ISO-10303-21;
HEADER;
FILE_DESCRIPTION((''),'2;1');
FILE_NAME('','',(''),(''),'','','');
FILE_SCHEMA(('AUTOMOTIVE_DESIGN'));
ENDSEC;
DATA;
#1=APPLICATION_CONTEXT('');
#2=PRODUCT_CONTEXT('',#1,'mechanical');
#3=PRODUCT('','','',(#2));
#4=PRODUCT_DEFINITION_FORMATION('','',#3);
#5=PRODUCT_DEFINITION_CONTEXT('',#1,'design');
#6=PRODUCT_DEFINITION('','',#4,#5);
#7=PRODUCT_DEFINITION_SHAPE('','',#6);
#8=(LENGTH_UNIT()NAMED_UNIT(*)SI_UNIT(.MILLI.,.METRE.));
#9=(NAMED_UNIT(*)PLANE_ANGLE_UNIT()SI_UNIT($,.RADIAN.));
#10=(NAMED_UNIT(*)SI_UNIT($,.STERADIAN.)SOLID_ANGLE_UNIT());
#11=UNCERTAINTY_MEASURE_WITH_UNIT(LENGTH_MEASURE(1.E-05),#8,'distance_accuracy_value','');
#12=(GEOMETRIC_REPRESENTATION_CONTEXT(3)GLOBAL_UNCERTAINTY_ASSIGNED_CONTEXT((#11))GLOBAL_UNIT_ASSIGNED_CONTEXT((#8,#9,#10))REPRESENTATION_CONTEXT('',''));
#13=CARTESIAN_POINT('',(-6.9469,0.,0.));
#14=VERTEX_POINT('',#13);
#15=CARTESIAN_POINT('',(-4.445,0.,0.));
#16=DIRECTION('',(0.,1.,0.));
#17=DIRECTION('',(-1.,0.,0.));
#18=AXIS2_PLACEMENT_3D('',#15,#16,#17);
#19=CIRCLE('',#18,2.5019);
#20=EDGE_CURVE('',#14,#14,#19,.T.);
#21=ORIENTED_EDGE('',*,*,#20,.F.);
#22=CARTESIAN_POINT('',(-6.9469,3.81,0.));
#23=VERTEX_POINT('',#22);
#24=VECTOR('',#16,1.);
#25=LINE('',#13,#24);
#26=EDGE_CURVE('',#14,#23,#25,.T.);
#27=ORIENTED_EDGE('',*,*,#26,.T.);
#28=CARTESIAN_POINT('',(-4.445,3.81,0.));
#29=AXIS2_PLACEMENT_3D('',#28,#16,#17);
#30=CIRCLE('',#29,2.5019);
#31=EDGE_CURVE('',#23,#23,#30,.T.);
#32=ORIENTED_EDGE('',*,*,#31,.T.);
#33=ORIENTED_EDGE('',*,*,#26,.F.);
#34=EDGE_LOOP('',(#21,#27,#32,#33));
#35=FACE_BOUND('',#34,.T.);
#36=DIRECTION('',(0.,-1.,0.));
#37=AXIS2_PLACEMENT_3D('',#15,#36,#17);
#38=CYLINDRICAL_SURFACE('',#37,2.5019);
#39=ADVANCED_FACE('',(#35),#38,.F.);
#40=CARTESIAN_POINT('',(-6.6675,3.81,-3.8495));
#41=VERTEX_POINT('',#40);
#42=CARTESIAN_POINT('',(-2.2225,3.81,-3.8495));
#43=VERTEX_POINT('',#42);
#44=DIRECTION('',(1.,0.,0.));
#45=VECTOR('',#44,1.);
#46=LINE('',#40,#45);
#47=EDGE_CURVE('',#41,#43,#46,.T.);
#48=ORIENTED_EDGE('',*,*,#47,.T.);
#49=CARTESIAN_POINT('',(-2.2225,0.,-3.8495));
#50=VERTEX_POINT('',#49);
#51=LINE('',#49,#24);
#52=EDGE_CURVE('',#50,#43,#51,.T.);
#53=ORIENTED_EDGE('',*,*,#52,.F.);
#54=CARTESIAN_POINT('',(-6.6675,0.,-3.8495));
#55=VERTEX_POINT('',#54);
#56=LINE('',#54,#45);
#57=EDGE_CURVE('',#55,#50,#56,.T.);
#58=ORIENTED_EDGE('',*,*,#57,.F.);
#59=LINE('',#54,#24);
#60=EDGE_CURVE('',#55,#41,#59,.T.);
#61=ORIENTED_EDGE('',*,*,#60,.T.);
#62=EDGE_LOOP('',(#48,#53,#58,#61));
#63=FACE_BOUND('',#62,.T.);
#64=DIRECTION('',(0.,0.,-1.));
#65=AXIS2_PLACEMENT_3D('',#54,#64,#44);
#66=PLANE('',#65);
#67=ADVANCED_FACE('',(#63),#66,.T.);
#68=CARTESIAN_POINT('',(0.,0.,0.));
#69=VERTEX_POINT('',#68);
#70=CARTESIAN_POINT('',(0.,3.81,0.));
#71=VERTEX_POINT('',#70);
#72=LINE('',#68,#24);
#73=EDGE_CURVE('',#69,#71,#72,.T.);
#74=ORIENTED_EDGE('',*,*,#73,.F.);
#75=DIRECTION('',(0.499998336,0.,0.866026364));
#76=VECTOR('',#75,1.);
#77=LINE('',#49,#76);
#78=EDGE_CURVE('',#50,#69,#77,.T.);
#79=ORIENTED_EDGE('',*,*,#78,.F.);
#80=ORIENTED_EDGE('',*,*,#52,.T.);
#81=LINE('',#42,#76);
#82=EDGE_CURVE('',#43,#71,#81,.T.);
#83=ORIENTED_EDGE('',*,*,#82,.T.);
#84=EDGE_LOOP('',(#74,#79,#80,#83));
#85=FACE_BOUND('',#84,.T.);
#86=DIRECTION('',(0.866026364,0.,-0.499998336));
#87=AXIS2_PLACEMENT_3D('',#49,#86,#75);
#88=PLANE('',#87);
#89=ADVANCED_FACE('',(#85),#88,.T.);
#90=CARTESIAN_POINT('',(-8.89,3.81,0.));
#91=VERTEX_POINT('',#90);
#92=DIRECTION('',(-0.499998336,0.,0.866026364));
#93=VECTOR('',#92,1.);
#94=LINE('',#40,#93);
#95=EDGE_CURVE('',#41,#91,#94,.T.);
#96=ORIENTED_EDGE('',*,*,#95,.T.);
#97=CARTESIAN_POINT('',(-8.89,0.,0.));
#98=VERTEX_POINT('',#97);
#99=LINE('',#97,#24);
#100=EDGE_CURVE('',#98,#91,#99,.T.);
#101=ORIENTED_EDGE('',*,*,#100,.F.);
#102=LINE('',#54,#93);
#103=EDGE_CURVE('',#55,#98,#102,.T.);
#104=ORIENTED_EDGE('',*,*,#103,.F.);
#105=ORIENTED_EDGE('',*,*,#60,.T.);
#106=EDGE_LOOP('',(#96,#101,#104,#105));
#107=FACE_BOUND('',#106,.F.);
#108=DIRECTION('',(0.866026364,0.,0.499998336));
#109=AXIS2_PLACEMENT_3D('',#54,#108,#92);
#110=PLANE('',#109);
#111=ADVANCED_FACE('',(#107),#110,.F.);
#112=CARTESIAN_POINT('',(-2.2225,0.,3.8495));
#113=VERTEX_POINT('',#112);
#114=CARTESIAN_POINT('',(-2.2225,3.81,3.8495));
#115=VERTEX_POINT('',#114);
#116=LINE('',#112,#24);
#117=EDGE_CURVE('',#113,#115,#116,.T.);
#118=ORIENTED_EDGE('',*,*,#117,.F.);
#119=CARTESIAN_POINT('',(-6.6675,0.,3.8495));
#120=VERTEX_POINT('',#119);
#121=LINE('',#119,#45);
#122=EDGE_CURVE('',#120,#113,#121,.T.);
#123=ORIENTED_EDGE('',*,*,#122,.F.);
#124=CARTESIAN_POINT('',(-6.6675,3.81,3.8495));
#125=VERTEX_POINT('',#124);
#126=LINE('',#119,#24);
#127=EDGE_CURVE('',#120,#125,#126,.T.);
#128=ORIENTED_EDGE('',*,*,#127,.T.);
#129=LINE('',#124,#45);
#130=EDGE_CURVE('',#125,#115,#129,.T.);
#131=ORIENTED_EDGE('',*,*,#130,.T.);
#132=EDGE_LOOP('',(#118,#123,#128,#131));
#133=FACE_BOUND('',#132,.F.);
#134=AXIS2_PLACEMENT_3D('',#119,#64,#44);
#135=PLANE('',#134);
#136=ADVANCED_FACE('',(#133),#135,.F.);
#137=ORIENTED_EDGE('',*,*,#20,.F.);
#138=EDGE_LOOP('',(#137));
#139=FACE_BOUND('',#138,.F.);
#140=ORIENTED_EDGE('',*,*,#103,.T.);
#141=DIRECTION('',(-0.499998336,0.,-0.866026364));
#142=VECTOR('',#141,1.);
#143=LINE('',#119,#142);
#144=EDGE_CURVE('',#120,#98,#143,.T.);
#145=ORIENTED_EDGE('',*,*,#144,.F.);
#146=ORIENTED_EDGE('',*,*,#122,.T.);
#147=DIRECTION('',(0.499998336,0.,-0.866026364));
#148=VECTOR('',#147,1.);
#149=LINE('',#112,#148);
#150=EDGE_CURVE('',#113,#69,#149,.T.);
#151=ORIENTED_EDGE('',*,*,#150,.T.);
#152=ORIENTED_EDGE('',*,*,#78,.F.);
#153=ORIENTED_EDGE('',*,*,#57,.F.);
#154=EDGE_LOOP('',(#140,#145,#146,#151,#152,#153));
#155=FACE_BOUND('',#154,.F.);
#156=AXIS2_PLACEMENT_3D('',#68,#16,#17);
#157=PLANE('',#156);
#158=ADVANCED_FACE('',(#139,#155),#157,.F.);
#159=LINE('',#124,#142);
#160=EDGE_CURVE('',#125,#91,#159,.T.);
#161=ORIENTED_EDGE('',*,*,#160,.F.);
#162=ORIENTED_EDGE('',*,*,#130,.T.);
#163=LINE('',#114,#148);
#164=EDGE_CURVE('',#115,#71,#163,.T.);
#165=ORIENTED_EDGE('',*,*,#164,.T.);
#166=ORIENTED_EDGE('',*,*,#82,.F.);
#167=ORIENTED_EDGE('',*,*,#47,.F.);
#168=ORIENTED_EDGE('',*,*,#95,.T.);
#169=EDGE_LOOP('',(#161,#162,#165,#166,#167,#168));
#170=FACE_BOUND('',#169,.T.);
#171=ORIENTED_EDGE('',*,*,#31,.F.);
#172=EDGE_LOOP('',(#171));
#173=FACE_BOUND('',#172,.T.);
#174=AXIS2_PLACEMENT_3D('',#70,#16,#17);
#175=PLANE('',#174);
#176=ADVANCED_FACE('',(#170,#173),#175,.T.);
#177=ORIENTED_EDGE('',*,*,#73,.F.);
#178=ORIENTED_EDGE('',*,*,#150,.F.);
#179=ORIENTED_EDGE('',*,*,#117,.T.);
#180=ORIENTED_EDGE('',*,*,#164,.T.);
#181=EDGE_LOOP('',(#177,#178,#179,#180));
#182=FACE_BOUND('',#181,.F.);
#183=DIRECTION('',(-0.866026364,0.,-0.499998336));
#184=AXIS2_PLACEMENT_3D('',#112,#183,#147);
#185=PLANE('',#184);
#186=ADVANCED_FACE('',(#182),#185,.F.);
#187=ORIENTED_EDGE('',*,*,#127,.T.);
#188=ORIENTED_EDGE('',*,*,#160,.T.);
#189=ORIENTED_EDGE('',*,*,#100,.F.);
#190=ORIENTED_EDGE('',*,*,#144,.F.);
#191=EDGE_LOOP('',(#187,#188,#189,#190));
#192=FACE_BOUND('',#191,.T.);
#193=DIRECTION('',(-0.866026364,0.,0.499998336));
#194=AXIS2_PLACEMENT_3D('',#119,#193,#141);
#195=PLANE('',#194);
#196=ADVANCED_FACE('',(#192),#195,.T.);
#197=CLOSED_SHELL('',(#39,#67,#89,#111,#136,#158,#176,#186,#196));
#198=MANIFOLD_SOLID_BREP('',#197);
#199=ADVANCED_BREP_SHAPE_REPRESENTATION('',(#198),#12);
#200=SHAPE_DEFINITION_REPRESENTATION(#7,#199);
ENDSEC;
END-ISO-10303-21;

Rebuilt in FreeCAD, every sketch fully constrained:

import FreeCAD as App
import Part
import Sketcher

V = App.Vector
Q = App.Units.Quantity

doc = App.newDocument("Part")
body = doc.addObject("PartDesign::Body", "Body")

# Sketch on XZ plane
sketch1 = body.newObject("Sketcher::SketchObject", "Sketch")
sketch1.AttachmentSupport = (doc.getObject("XZ_Plane"), [""])
sketch1.MapMode = "FlatFace"
sketch1.addGeometry([
    Part.LineSegment(V(-2.2, -3.8, 0), V(-6.7, -3.8, 0)),  # 0
    Part.LineSegment(V(-6.7, -3.8, 0), V(-8.9, 0, 0)),  # 1
    Part.LineSegment(V(-8.9, 0, 0), V(-6.7, 3.8, 0)),  # 2
    Part.LineSegment(V(-6.7, 3.8, 0), V(-2.2, 3.8, 0)),  # 3
    Part.LineSegment(V(-2.2, 3.8, 0), V(0, 0, 0)),  # 4
    Part.LineSegment(V(0, 0, 0), V(-2.2, -3.8, 0)),  # 5
    Part.Circle(V(-4.4, 0, 0), V(0, 0, 1), 2.5),  # 6
], False)
sketch1.addConstraint([
    Sketcher.Constraint("Coincident", 0, 2, 1, 1),
    Sketcher.Constraint("Coincident", 1, 2, 2, 1),
    Sketcher.Constraint("Coincident", 2, 2, 3, 1),
    Sketcher.Constraint("Coincident", 3, 2, 4, 1),
    Sketcher.Constraint("Coincident", 4, 2, 5, 1),
    Sketcher.Constraint("Coincident", 5, 2, 0, 1),
    Sketcher.Constraint("Horizontal", 0),
    Sketcher.Constraint("Horizontal", 3),
    Sketcher.Constraint("Coincident", 4, 2, -1, 1),
    Sketcher.Constraint("Symmetric", 0, 2, 2, 2, -1),
    Sketcher.Constraint("PointOnObject", 6, 3, -1),
    Sketcher.Constraint("PointOnObject", 1, 2, -1),
    Sketcher.Constraint("Parallel", 1, 4),
    Sketcher.Constraint("Parallel", 2, 5),
    Sketcher.Constraint("Diameter", 6, Q("0.197 in")),
    Sketcher.Constraint("Angle", 1, Q("120 deg")),
    Sketcher.Constraint("DistanceX", 0, 2, 0, 1, Q("0.175 in")),
    Sketcher.Constraint("DistanceX", 1, 2, -1, 1, Q("0.35 in")),
    Sketcher.Constraint("DistanceX", 6, 3, -1, 1, Q("0.175 in")),
])
pad1 = body.newObject("PartDesign::Pad", "Pad")
pad1.Profile = sketch1
pad1.Length = Q("0.15 in")
pad1.Reversed = True

doc.recompute()
